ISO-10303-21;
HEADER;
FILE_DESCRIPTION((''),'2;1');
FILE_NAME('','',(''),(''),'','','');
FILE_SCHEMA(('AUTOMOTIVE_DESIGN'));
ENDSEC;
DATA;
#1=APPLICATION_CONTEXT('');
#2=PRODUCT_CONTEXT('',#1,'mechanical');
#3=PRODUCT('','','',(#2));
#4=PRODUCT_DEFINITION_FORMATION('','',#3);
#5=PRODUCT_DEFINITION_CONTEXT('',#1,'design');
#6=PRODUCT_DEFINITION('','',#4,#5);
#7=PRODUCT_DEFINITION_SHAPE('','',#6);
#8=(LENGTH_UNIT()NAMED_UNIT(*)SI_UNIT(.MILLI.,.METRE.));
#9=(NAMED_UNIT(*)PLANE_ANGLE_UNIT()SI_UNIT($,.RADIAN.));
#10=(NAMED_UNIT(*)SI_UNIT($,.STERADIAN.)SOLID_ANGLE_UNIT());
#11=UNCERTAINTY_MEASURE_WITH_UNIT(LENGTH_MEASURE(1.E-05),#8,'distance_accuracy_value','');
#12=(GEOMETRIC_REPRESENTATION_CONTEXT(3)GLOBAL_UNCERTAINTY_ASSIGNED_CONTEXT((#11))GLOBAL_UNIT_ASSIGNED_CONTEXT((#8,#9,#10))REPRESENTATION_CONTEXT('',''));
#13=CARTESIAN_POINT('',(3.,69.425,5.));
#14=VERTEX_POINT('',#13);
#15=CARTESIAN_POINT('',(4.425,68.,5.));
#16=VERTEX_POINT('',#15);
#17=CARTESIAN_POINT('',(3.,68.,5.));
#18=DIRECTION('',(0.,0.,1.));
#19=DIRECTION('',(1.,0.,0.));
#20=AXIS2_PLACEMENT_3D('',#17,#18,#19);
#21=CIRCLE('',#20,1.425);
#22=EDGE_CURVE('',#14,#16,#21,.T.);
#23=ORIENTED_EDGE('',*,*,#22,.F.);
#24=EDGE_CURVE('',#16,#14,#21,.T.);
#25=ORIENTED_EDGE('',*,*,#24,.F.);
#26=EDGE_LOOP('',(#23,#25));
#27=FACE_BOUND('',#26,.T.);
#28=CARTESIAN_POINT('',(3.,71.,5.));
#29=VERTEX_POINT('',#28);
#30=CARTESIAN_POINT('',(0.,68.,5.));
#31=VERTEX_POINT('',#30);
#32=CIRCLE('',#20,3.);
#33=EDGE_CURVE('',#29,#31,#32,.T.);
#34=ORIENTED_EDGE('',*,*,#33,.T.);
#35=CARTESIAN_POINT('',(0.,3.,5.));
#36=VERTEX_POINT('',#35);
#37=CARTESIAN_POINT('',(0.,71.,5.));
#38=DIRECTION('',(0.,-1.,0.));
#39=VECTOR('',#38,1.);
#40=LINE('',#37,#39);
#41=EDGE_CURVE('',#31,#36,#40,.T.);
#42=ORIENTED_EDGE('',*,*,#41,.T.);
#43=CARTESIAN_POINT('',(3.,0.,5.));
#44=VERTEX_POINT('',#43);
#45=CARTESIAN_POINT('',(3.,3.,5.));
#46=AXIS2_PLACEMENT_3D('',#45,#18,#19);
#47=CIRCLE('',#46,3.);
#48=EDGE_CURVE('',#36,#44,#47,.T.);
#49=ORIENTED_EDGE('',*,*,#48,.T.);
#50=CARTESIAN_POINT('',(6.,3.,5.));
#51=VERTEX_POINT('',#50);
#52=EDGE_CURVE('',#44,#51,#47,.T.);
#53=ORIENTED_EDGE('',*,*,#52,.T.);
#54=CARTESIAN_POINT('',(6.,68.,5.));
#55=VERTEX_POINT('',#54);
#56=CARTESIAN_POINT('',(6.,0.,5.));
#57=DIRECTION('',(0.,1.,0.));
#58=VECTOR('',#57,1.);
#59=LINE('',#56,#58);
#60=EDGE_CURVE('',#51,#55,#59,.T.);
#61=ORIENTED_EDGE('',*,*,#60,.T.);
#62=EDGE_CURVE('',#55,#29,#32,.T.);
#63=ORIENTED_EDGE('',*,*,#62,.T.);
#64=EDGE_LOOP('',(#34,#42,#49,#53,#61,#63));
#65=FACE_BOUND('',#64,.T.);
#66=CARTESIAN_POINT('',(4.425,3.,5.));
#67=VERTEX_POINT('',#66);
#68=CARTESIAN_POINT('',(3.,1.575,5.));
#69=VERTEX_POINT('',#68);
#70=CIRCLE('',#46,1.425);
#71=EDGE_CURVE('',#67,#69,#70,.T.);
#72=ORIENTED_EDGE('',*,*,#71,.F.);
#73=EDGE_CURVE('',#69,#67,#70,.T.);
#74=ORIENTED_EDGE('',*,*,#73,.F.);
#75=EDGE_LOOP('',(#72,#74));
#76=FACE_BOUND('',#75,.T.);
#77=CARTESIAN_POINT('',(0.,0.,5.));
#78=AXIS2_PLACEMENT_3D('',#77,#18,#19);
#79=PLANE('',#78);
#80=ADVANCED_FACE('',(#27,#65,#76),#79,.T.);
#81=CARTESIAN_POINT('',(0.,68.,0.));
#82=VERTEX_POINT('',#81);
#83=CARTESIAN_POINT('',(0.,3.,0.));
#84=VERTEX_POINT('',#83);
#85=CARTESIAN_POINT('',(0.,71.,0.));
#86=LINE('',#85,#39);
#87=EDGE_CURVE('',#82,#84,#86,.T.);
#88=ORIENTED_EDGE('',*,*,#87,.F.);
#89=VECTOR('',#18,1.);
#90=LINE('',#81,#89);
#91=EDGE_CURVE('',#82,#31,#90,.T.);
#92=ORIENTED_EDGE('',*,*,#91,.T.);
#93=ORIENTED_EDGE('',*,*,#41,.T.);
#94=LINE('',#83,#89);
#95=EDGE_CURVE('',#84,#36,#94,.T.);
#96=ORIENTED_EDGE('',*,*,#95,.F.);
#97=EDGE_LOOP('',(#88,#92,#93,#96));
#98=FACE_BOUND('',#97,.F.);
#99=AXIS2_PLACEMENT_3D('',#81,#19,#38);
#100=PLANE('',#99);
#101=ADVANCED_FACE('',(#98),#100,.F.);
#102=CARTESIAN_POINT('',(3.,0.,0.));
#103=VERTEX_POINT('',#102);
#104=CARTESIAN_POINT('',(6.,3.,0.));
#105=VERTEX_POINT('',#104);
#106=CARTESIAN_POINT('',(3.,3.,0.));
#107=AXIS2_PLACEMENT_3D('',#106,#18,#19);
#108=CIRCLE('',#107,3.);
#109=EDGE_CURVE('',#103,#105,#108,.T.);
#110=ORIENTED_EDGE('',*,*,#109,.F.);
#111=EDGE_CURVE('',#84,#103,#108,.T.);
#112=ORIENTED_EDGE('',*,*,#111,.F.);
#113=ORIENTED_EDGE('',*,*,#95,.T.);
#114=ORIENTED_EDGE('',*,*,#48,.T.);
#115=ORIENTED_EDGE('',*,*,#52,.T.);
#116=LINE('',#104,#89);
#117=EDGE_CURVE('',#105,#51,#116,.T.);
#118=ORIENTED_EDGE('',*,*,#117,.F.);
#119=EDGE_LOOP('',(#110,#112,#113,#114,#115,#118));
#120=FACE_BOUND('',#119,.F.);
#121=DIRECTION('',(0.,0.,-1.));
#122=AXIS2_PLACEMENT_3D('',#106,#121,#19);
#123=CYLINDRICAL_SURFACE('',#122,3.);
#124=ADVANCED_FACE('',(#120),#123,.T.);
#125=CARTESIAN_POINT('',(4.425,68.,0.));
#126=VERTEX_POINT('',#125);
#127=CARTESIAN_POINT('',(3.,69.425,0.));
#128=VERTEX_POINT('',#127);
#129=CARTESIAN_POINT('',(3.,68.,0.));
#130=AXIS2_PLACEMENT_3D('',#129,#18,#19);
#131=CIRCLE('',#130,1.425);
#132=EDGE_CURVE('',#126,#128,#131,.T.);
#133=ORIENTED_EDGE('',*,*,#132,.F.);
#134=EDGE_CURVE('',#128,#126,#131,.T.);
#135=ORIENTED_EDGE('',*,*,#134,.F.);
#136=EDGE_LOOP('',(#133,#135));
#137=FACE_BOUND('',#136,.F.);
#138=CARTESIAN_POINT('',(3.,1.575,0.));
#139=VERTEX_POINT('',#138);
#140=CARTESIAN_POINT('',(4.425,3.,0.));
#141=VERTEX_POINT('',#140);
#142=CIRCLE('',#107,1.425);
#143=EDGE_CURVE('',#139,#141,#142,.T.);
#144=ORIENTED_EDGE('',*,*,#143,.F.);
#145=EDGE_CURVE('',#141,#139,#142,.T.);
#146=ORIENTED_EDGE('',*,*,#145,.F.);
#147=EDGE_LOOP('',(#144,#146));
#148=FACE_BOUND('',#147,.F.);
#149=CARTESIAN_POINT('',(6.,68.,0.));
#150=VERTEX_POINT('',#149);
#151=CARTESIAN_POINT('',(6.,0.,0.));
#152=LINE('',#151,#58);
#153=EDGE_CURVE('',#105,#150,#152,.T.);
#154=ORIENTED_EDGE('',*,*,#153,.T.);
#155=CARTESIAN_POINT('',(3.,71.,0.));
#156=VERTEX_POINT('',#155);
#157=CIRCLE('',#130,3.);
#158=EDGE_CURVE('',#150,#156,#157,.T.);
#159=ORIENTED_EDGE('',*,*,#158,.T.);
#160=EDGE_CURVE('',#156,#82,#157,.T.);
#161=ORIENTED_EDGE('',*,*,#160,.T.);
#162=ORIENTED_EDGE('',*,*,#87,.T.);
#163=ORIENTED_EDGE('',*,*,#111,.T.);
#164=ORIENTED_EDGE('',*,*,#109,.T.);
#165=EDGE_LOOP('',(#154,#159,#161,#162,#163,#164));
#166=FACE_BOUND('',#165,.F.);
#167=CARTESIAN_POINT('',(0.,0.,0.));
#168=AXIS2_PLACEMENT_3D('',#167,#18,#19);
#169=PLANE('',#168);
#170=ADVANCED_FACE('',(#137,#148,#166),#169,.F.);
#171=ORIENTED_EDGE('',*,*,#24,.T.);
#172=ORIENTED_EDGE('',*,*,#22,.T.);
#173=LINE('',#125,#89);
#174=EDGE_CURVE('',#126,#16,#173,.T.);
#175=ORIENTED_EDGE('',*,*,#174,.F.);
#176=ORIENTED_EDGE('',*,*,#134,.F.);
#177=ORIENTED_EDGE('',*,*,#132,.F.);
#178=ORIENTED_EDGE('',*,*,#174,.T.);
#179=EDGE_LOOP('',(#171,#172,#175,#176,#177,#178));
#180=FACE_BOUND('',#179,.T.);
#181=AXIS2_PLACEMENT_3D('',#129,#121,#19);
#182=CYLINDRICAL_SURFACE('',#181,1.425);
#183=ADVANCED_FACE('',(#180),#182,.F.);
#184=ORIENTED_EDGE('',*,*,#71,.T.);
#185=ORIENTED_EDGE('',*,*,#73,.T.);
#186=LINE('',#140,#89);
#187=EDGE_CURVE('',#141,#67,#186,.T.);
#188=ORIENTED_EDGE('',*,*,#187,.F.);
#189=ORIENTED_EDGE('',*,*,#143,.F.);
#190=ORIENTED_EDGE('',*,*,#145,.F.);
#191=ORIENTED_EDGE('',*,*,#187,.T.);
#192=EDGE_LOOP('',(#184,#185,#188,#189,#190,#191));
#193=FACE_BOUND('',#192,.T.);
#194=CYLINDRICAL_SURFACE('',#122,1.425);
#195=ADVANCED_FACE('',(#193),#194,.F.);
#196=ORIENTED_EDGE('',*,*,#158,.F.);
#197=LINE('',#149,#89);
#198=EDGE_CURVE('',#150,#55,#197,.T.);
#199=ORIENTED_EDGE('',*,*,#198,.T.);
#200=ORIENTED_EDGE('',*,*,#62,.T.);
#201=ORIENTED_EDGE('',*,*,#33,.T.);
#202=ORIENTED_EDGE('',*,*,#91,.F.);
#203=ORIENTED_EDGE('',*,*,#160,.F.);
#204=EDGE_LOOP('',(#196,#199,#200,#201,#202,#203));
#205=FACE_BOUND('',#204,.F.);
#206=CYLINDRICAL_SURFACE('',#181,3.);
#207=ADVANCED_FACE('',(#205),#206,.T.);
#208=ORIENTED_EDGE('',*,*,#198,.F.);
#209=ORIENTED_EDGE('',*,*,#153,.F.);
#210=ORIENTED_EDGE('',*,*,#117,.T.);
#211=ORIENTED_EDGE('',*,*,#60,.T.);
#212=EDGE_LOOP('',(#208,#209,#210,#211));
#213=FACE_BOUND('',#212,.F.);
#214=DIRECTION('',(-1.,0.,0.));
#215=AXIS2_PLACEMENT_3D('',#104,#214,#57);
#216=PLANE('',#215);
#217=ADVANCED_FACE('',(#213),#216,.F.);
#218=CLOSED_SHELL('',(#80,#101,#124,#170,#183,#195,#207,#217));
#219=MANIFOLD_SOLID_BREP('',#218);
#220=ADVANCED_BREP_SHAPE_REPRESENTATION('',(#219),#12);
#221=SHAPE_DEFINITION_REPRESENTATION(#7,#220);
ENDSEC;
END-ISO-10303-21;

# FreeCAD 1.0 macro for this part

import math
import FreeCAD as App
import Part
import Sketcher
from FreeCAD import Vector
Q = App.Units.Quantity

doc = App.newDocument("Part")
body = doc.addObject("PartDesign::Body", "Body")

sketch1 = doc.addObject("Sketcher::SketchObject", "Sketch")
body.addObject(sketch1)
sketch1.AttachmentSupport = (doc.XY_Plane, [""])
sketch1.MapMode = "FlatFace"
sketch1.addGeometry(Part.ArcOfCircle(Part.Circle(Vector(3, 3, 0), Vector(0, 0, 1), 3), math.radians(180), math.radians(270)), False)
sketch1.addGeometry(Part.ArcOfCircle(Part.Circle(Vector(3, 3, 0), Vector(0, 0, 1), 3), math.radians(-90), math.radians(0)), False)
sketch1.addGeometry(Part.LineSegment(Vector(6, 3, 0), Vector(6, 68, 0)), False)
sketch1.addGeometry(Part.ArcOfCircle(Part.Circle(Vector(3, 68, 0), Vector(0, 0, 1), 3), math.radians(0), math.radians(90)), False)
sketch1.addGeometry(Part.ArcOfCircle(Part.Circle(Vector(3, 68, 0), Vector(0, 0, 1), 3), math.radians(90), math.radians(180)), False)
sketch1.addGeometry(Part.LineSegment(Vector(0, 68, 0), Vector(0, 3, 0)), False)
sketch1.addGeometry(Part.Circle(Vector(3, 3, 0), Vector(0, 0, 1), 1.425), False)
sketch1.addGeometry(Part.Circle(Vector(3, 68, 0), Vector(0, 0, 1), 1.425), False)
sketch1.addConstraint(Sketcher.Constraint("Tangent", 0, 2, 1, 1))
sketch1.addConstraint(Sketcher.Constraint("Tangent", 1, 2, 2, 1))
sketch1.addConstraint(Sketcher.Constraint("Tangent", 2, 2, 3, 1))
sketch1.addConstraint(Sketcher.Constraint("Tangent", 3, 2, 4, 1))
sketch1.addConstraint(Sketcher.Constraint("Tangent", 4, 2, 5, 1))
sketch1.addConstraint(Sketcher.Constraint("Tangent", 5, 2, 0, 1))
sketch1.addConstraint(Sketcher.Constraint("Vertical", 2))
sketch1.addConstraint(Sketcher.Constraint("Vertical", 5))
sketch1.addConstraint(Sketcher.Constraint("Coincident", 6, 3, 0, 3))
sketch1.addConstraint(Sketcher.Constraint("Coincident", 7, 3, 3, 3))
sketch1.addConstraint(Sketcher.Constraint("Equal", 0, 1))
sketch1.addConstraint(Sketcher.Constraint("Equal", 1, 3))
sketch1.addConstraint(Sketcher.Constraint("Equal", 6, 7))
sketch1.addConstraint(Sketcher.Constraint("PointOnObject", 0, 2, -1))
sketch1.addConstraint(Sketcher.Constraint("PointOnObject", 4, 2, -2))
sketch1.addConstraint(Sketcher.Constraint("Vertical", 7, 3, 0, 2))
sketch1.addConstraint(Sketcher.Constraint("Vertical", 0, 2, 3, 2))
sketch1.addConstraint(Sketcher.Constraint("Radius", 0, Q("3 mm")))
sketch1.addConstraint(Sketcher.Constraint("Diameter", 6, Q("2.85 mm")))
sketch1.addConstraint(Sketcher.Constraint("DistanceY", -1, 1, 3, 2, Q("71 mm")))
pad1 = doc.addObject("PartDesign::Pad", "Pad")
body.addObject(pad1)
pad1.Profile = sketch1
pad1.Length = 5

doc.recompute()
